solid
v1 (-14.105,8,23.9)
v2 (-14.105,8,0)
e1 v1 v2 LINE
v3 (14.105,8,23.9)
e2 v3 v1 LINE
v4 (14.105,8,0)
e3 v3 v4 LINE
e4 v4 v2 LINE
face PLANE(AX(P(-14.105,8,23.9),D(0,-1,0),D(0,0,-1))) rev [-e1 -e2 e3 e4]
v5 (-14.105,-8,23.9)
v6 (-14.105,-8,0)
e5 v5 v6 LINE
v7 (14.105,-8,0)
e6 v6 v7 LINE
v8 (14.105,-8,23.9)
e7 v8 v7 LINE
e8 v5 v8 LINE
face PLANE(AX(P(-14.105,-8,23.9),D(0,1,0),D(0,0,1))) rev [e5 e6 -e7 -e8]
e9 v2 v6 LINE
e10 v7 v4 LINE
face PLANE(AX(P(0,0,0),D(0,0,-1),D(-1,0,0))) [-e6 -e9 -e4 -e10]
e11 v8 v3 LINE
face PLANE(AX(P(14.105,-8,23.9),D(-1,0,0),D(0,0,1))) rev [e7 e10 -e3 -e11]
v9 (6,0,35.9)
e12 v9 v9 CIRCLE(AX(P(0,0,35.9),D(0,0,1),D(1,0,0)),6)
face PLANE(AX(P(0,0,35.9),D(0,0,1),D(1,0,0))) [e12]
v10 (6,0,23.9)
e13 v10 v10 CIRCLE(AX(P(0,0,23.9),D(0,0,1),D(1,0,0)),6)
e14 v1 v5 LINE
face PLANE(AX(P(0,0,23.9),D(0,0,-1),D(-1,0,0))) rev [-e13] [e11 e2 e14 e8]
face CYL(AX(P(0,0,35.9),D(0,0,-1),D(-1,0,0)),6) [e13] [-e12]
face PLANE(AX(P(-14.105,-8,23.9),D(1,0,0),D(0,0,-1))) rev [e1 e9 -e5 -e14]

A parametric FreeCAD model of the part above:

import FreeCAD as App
import Part
import Sketcher
from FreeCAD import Vector


def add_polygon(sketch, points):
    """Adds a closed chain of lines whose ends are joined by coincident constraints."""
    first, n = sketch.GeometryCount, len(points)
    for a, b in zip(points, points[1:] + points[:1]):
        sketch.addGeometry(Part.LineSegment(App.Vector(*a, 0), App.Vector(*b, 0)), False)
    for i in range(n):
        sketch.addConstraint(Sketcher.Constraint("Coincident", first + i, 2, first + (i + 1) % n, 1))

doc = App.newDocument("Part")
body = doc.addObject("PartDesign::Body", "Body")

# Sketch on XY plane
sketch1 = body.newObject("Sketcher::SketchObject", "Sketch")
sketch1.AttachmentSupport = (doc.getObject("XY_Plane"), [""])
sketch1.MapMode = "FlatFace"
add_polygon(sketch1, [(-14.105, 8), (-14.105, -8), (14.105, -8), (14.105, 8)])  # lines 0-3
sketch1.addConstraint(Sketcher.Constraint("Vertical", 0))
sketch1.addConstraint(Sketcher.Constraint("Horizontal", 1))
sketch1.addConstraint(Sketcher.Constraint("Vertical", 2))
sketch1.addConstraint(Sketcher.Constraint("Horizontal", 3))
sketch1.addConstraint(Sketcher.Constraint("Symmetric", 0, 2, 2, 2, -1, 1))
sketch1.addConstraint(Sketcher.Constraint("DistanceY", 0, 2, 0, 1, 16.0))
sketch1.addConstraint(Sketcher.Constraint("DistanceX", 1, 1, 1, 2, 28.21))
pad1 = body.newObject("PartDesign::Pad", "Pad")
pad1.Profile = sketch1
pad1.Length = 23.9

# Sketch on XY plane
sketch2 = body.newObject("Sketcher::SketchObject", "Sketch001")
sketch2.AttachmentSupport = (doc.getObject("XY_Plane"), [""])
sketch2.MapMode = "FlatFace"
sketch2.AttachmentOffset = App.Placement(Vector(0, 0, 23.9), App.Rotation())
sketch2.addGeometry(Part.Circle(Vector(0, 0, 0), Vector(0, 0, 1), 6), False)
sketch2.addConstraint(Sketcher.Constraint("Coincident", 0, 3, -1, 1))
sketch2.addConstraint(Sketcher.Constraint("Diameter", 0, 12.0))
pad2 = body.newObject("PartDesign::Pad", "Pad001")
pad2.Profile = sketch2
pad2.Length = 12

doc.recompute()
